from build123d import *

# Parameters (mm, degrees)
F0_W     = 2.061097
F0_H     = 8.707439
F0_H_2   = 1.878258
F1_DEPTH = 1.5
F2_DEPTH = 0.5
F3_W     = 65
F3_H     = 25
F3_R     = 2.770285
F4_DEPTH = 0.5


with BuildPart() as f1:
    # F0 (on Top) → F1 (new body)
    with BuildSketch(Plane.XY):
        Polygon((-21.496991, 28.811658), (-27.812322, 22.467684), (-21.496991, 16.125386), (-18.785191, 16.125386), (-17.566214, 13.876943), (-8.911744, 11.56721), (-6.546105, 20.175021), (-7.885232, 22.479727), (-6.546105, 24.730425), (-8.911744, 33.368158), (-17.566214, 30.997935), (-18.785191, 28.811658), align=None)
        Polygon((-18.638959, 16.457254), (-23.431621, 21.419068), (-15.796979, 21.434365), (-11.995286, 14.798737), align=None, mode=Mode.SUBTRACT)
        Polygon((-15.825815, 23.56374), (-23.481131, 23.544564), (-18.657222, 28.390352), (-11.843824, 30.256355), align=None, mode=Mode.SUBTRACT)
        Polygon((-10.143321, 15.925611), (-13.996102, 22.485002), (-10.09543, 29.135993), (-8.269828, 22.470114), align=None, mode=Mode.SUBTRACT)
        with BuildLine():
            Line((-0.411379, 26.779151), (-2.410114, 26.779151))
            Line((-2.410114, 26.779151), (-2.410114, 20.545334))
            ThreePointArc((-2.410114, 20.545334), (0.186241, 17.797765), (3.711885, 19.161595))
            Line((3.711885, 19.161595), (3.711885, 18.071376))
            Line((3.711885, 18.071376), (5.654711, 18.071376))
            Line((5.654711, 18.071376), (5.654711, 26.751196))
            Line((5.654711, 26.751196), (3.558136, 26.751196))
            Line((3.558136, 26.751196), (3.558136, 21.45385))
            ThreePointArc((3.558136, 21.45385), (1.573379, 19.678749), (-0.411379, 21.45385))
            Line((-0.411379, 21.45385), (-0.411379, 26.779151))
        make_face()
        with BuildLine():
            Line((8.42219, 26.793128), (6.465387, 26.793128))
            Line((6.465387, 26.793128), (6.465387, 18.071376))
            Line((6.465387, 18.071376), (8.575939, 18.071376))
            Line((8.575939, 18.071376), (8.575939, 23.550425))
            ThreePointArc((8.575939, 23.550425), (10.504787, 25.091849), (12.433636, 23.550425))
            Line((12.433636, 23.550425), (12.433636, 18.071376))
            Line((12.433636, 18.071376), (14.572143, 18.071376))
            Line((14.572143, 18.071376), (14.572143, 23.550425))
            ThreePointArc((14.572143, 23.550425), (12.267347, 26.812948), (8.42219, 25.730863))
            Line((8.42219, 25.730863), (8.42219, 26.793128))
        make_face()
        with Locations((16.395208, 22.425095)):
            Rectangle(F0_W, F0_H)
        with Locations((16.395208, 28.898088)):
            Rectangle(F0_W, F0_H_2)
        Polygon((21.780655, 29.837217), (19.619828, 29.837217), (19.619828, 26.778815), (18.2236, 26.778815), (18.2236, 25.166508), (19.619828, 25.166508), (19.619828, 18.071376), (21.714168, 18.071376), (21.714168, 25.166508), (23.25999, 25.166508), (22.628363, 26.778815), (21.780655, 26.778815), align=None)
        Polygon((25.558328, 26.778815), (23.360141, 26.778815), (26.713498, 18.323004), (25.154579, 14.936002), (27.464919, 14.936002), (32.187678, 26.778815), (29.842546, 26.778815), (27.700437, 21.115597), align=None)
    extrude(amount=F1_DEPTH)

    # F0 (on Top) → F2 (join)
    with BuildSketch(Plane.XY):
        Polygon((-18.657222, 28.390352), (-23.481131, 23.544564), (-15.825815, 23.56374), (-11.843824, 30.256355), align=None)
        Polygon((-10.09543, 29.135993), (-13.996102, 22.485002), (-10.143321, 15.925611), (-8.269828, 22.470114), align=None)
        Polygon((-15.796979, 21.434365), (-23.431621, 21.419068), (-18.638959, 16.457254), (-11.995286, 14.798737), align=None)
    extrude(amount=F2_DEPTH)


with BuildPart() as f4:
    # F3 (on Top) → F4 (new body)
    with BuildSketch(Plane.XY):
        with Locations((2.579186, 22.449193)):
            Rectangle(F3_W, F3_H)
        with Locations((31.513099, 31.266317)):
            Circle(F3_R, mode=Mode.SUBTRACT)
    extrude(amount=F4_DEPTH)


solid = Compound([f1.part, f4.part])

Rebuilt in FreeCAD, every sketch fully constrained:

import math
import FreeCAD as App
import Part
import Sketcher
from FreeCAD import Vector


def add_polygon(sketch, points):
    """Adds a closed chain of lines whose ends are joined by coincident constraints."""
    first, n = sketch.GeometryCount, len(points)
    for a, b in zip(points, points[1:] + points[:1]):
        sketch.addGeometry(Part.LineSegment(App.Vector(*a, 0), App.Vector(*b, 0)), False)
    for i in range(n):
        sketch.addConstraint(Sketcher.Constraint("Coincident", first + i, 2, first + (i + 1) % n, 1))

doc = App.newDocument("Part")
params = doc.addObject("Spreadsheet::Sheet", "Params")
for row, (alias, value) in enumerate([
    ("pad1_length", "1.5 mm"),
    ("pad2_length", "0.5 mm"),
    ("sketch3_width", "65 mm"),
    ("sketch3_height", "25 mm"),
    ("pad3_length", "0.5 mm"),
], start=1):
    params.set(f"A{row}", alias)
    params.set(f"B{row}", "=" + value)
    params.setAlias(f"B{row}", alias)

body = doc.addObject("PartDesign::Body", "Body")
body.AllowCompound = True

# Sketch on XY plane
sketch1 = body.newObject("Sketcher::SketchObject", "Sketch")
sketch1.AttachmentSupport = (doc.getObject("XY_Plane"), [""])
sketch1.MapMode = "FlatFace"
add_polygon(sketch1, [(-21.496991, 28.811658), (-27.812322, 22.467684), (-21.496991, 16.125386), (-18.785191, 16.125386), (-17.566214, 13.876943), (-8.911744, 11.56721), (-6.546105, 20.175021), (-7.885232, 22.479727), (-6.546105, 24.730425), (-8.911744, 33.368158), (-17.566214, 30.997935), (-18.785191, 28.811658)])  # lines 0-11
add_polygon(sketch1, [(-11.995286, 14.798737), (-18.638959, 16.457254), (-23.431621, 21.419068), (-15.796979, 21.434365)])  # lines 12-15
add_polygon(sketch1, [(-11.843824, 30.256355), (-15.825815, 23.56374), (-23.481131, 23.544564), (-18.657222, 28.390352)])  # lines 16-19
add_polygon(sketch1, [(-8.269828, 22.470114), (-10.143321, 15.925611), (-13.996102, 22.485002), (-10.09543, 29.135993)])  # lines 20-23
sketch1.addGeometry(Part.LineSegment(Vector(-0.411379, 26.779151, 0), Vector(-2.410114, 26.779151, 0)), False)  # 24
sketch1.addGeometry(Part.LineSegment(Vector(-2.410114, 26.779151, 0), Vector(-2.410114, 20.545334, 0)), False)  # 25
sketch1.addGeometry(Part.ArcOfCircle(Part.Circle(Vector(0.933671, 21.104576, 0), Vector(0, 0, 1), 3.390228), math.radians(-170.505268), math.radians(-34.967524)), False)  # 26
sketch1.addGeometry(Part.LineSegment(Vector(3.711885, 19.161595, 0), Vector(3.711885, 18.071376, 0)), False)  # 27
sketch1.addGeometry(Part.LineSegment(Vector(3.711885, 18.071376, 0), Vector(5.654711, 18.071376, 0)), False)  # 28
sketch1.addGeometry(Part.LineSegment(Vector(5.654711, 18.071376, 0), Vector(5.654711, 26.751196, 0)), False)  # 29
sketch1.addGeometry(Part.LineSegment(Vector(5.654711, 26.751196, 0), Vector(3.558136, 26.751196, 0)), False)  # 30
sketch1.addGeometry(Part.LineSegment(Vector(3.558136, 26.751196, 0), Vector(3.558136, 21.45385, 0)), False)  # 31
sketch1.addGeometry(Part.ArcOfCircle(Part.Circle(Vector(1.573379, 21.675888, 0), Vector(0, 0, 1), 1.997139), math.radians(-173.616778), math.radians(-6.383222)), False)  # 32
sketch1.addGeometry(Part.LineSegment(Vector(-0.411379, 21.45385, 0), Vector(-0.411379, 26.779151, 0)), False)  # 33
sketch1.addGeometry(Part.LineSegment(Vector(8.42219, 26.793128, 0), Vector(6.465387, 26.793128, 0)), False)  # 34
sketch1.addGeometry(Part.LineSegment(Vector(6.465387, 26.793128, 0), Vector(6.465387, 18.071376, 0)), False)  # 35
sketch1.addGeometry(Part.LineSegment(Vector(6.465387, 18.071376, 0), Vector(8.575939, 18.071376, 0)), False)  # 36
sketch1.addGeometry(Part.LineSegment(Vector(8.575939, 18.071376, 0), Vector(8.575939, 23.550425, 0)), False)  # 37
sketch1.addGeometry(Part.ArcOfCircle(Part.Circle(Vector(10.504788, 23.114312, 0), Vector(0, 0, 1), 1.977537), math.radians(12.740354), math.radians(167.259646)), False)  # 38
sketch1.addGeometry(Part.LineSegment(Vector(12.433636, 23.550425, 0), Vector(12.433636, 18.071376, 0)), False)  # 39
sketch1.addGeometry(Part.LineSegment(Vector(12.433636, 18.071376, 0), Vector(14.572143, 18.071376, 0)), False)  # 40
sketch1.addGeometry(Part.LineSegment(Vector(14.572143, 18.071376, 0), Vector(14.572143, 23.550425, 0)), False)  # 41
sketch1.addGeometry(Part.ArcOfCircle(Part.Circle(Vector(11.110634, 23.550425, 0), Vector(0, 0, 1), 3.461509), math.radians(0.000007), math.radians(140.956531)), False)  # 42
sketch1.addGeometry(Part.LineSegment(Vector(8.42219, 25.730863, 0), Vector(8.42219, 26.793128, 0)), False)  # 43
add_polygon(sketch1, [(15.36466, 26.778814), (15.36466, 18.071375), (17.425756, 18.071375), (17.425756, 26.778814)])  # lines 44-47
add_polygon(sketch1, [(15.36466, 29.837217), (15.36466, 27.958959), (17.425756, 27.958959), (17.425756, 29.837217)])  # lines 48-51
add_polygon(sketch1, [(21.780655, 29.837217), (19.619828, 29.837217), (19.619828, 26.778815), (18.2236, 26.778815), (18.2236, 25.166508), (19.619828, 25.166508), (19.619828, 18.071376), (21.714168, 18.071376), (21.714168, 25.166508), (23.25999, 25.166508), (22.628363, 26.778815), (21.780655, 26.778815)])  # lines 52-63
add_polygon(sketch1, [(25.558328, 26.778815), (23.360141, 26.778815), (26.713498, 18.323004), (25.154579, 14.936002), (27.464919, 14.936002), (32.187678, 26.778815), (29.842546, 26.778815), (27.700437, 21.115597)])  # lines 64-71
sketch1.addConstraint([
    Sketcher.Constraint("Coincident", 24, 2, 25, 1),
    Sketcher.Constraint("Coincident", 25, 2, 26, 1),
    Sketcher.Constraint("Coincident", 26, 2, 27, 1),
    Sketcher.Constraint("Coincident", 27, 2, 28, 1),
    Sketcher.Constraint("Coincident", 28, 2, 29, 1),
    Sketcher.Constraint("Coincident", 29, 2, 30, 1),
    Sketcher.Constraint("Coincident", 30, 2, 31, 1),
    Sketcher.Constraint("Coincident", 31, 2, 32, 2),
    Sketcher.Constraint("Coincident", 32, 1, 33, 1),
    Sketcher.Constraint("Coincident", 33, 2, 24, 1),
    Sketcher.Constraint("Coincident", 34, 2, 35, 1),
    Sketcher.Constraint("Coincident", 35, 2, 36, 1),
    Sketcher.Constraint("Coincident", 36, 2, 37, 1),
    Sketcher.Constraint("Coincident", 37, 2, 38, 2),
    Sketcher.Constraint("Coincident", 38, 1, 39, 1),
    Sketcher.Constraint("Coincident", 39, 2, 40, 1),
    Sketcher.Constraint("Coincident", 40, 2, 41, 1),
    Sketcher.Constraint("Tangent", 41, 2, 42, 1),
    Sketcher.Constraint("Coincident", 42, 2, 43, 1),
    Sketcher.Constraint("Coincident", 43, 2, 34, 1),
    Sketcher.Constraint("Horizontal", 2),
    Sketcher.Constraint("Horizontal", 11),
    Sketcher.Constraint("Horizontal", 24),
    Sketcher.Constraint("Vertical", 25),
    Sketcher.Constraint("Vertical", 27),
    Sketcher.Constraint("Horizontal", 28),
    Sketcher.Constraint("Vertical", 29),
    Sketcher.Constraint("Horizontal", 30),
    Sketcher.Constraint("Vertical", 31),
    Sketcher.Constraint("Vertical", 33),
    Sketcher.Constraint("Horizontal", 34),
    Sketcher.Constraint("Vertical", 35),
    Sketcher.Constraint("Horizontal", 36),
    Sketcher.Constraint("Vertical", 37),
    Sketcher.Constraint("Vertical", 39),
    Sketcher.Constraint("Horizontal", 40),
    Sketcher.Constraint("Vertical", 41),
    Sketcher.Constraint("Vertical", 43),
    Sketcher.Constraint("Vertical", 44),
    Sketcher.Constraint("Horizontal", 45),
    Sketcher.Constraint("Vertical", 46),
    Sketcher.Constraint("Horizontal", 47),
    Sketcher.Constraint("Vertical", 48),
    Sketcher.Constraint("Horizontal", 49),
    Sketcher.Constraint("Vertical", 50),
    Sketcher.Constraint("Horizontal", 51),
    Sketcher.Constraint("Horizontal", 52),
    Sketcher.Constraint("Vertical", 53),
    Sketcher.Constraint("Horizontal", 54),
    Sketcher.Constraint("Vertical", 55),
    Sketcher.Constraint("Horizontal", 56),
    Sketcher.Constraint("Vertical", 57),
    Sketcher.Constraint("Horizontal", 58),
    Sketcher.Constraint("Vertical", 59),
    Sketcher.Constraint("Horizontal", 60),
    Sketcher.Constraint("Horizontal", 62),
    Sketcher.Constraint("Vertical", 63),
    Sketcher.Constraint("Horizontal", 64),
    Sketcher.Constraint("Horizontal", 67),
    Sketcher.Constraint("Horizontal", 69),
    Sketcher.Constraint("Perpendicular", 8, 9),
    Sketcher.Constraint("Parallel", 7, 16),
    Sketcher.Constraint("Parallel", 0, 18),
    Sketcher.Constraint("Parallel", 9, 19),
    Sketcher.Constraint("Perpendicular", 19, 23),
    Sketcher.Constraint("Horizontal", 31, 2, 32, 1),
    Sketcher.Constraint("Horizontal", 28, 2, 35, 2),
    Sketcher.Constraint("Horizontal", 42, 3, 37, 2),
    Sketcher.Constraint("Horizontal", 37, 2, 38, 1),
    Sketcher.Constraint("Horizontal", 36, 2, 39, 2),
    Sketcher.Constraint("Horizontal", 40, 2, 44, 2),
    Sketcher.Constraint("Horizontal", 51, 2, 52, 2),
    Sketcher.Constraint("Horizontal", 47, 2, 53, 2),
    Sketcher.Constraint("Horizontal", 45, 2, 57, 2),
    Sketcher.Constraint("Horizontal", 56, 2, 59, 2),
    Sketcher.Constraint("Horizontal", 54, 2, 61, 2),
    Sketcher.Constraint("Horizontal", 62, 2, 64, 2),
    Sketcher.Constraint("Horizontal", 64, 2, 68, 2),
    Sketcher.Constraint("Vertical", 5, 2, 7, 2),
    Sketcher.Constraint("Vertical", 4, 2, 8, 2),
    Sketcher.Constraint("Vertical", 3, 2, 9, 2),
    Sketcher.Constraint("Vertical", 2, 2, 10, 2),
    Sketcher.Constraint("Vertical", 1, 2, 11, 2),
    Sketcher.Constraint("Vertical", 47, 2, 48, 2),
    Sketcher.Constraint("Vertical", 46, 2, 49, 2),
    Sketcher.Constraint("Vertical", 53, 2, 56, 2),
    Sketcher.Constraint("Equal", 70, 71),
    Sketcher.Constraint("Radius", 26, 3.390228),
    Sketcher.Constraint("Radius", 32, 1.997139),
    Sketcher.Constraint("Radius", 42, 3.461509),
    Sketcher.Constraint("DistanceX", 2, 1, 2, 2, 2.7118),
    Sketcher.Constraint("DistanceY", 33, 1, 33, 2, 5.325301),
    Sketcher.Constraint("DistanceY", 53, 2, 53, 1, 3.058402),
    Sketcher.Constraint("Radius", 38, 1.977537),
    Sketcher.Constraint("Distance", 19, 7.064302),
    Sketcher.Constraint("DistanceX", 58, 1, 58, 2, 2.09434),
    Sketcher.Constraint("DistanceX", 60, 1, 60, 2, 1.545822),
    Sketcher.Constraint("DistanceX", 62, 2, 62, 1, 0.847708),
    Sketcher.Constraint("DistanceX", 67, 1, 67, 2, 2.31034),
    Sketcher.Constraint("DistanceX", 69, 2, 69, 1, 2.345132),
    Sketcher.Constraint("DistanceY", 27, 2, 27, 1, 1.090219),
    Sketcher.Constraint("DistanceY", 29, 1, 29, 2, 8.67982),
    Sketcher.Constraint("DistanceY", 35, 2, 35, 1, 8.721752),
    Sketcher.Constraint("DistanceY", 37, 1, 37, 2, 5.479049),
    Sketcher.Constraint("DistanceY", 44, 2, 44, 1, 8.707439),
    Sketcher.Constraint("DistanceY", 57, 2, 57, 1, 7.095132),
    Sketcher.Constraint("DistanceX", -1, 1, 54, 2, 18.2236),
    Sketcher.Constraint("DistanceX", -1, 1, 65, 2, 26.713498),
    Sketcher.Constraint("Distance", 7, 2.618951),
    Sketcher.Constraint("Distance", 8, 8.955818),
    Sketcher.Constraint("Distance", 9, 8.973172),
    Sketcher.Constraint("Distance", 10, 2.50314),
    Sketcher.Constraint("Distance", 12, 6.847559),
    Sketcher.Constraint("Distance", 15, 7.647511),
    Sketcher.Constraint("Distance", 16, 7.787641),
    Sketcher.Constraint("Distance", 17, 7.65534),
    Sketcher.Constraint("Distance", 23, 6.91135),
    Sketcher.Constraint("Distance", 65, 9.096469),
    Sketcher.Constraint("Distance", 66, 3.72854),
    Sketcher.Constraint("Distance", 68, 12.749771),
    Sketcher.Constraint("DistanceX", 24, 2, 24, 1, 1.998735),
    Sketcher.Constraint("DistanceX", 28, 1, 28, 2, 1.942826),
    Sketcher.Constraint("DistanceX", 30, 2, 30, 1, 2.096575),
    Sketcher.Constraint("DistanceX", 34, 2, 34, 1, 1.956803),
    Sketcher.Constraint("DistanceX", 36, 1, 36, 2, 2.110552),
    Sketcher.Constraint("DistanceX", 40, 1, 40, 2, 2.138507),
    Sketcher.Constraint("DistanceX", 45, 1, 45, 2, 2.061097),
    Sketcher.Constraint("DistanceX", 52, 2, 52, 1, 2.160827),
    Sketcher.Constraint("DistanceX", 54, 2, 54, 1, 1.396228),
    Sketcher.Constraint("DistanceX", 64, 2, 64, 1, 2.198187),
    Sketcher.Constraint("DistanceY", 25, 2, 25, 1, 6.233817),
    Sketcher.Constraint("DistanceY", 31, 2, 31, 1, 5.297346),
    Sketcher.Constraint("DistanceY", 43, 1, 43, 2, 1.062265),
    Sketcher.Constraint("DistanceY", 48, 2, 48, 1, 1.878258),
    Sketcher.Constraint("DistanceX", -1, 1, 26, 3, 0.933671),
    Sketcher.Constraint("DistanceX", -1, 1, 32, 3, 1.573379),
    Sketcher.Constraint("DistanceX", 1, 2, -1, 1, 21.496991),
    Sketcher.Constraint("DistanceY", -1, 1, 4, 2, 11.56721),
    Sketcher.Constraint("DistanceY", -1, 1, 5, 2, 20.175021),
    Sketcher.Constraint("DistanceY", -1, 1, 10, 2, 28.811658),
    Sketcher.Constraint("DistanceX", 12, 2, -1, 1, 18.638959),
    Sketcher.Constraint("DistanceX", 13, 2, -1, 1, 23.431621),
    Sketcher.Constraint("DistanceX", 14, 2, -1, 1, 15.796979),
    Sketcher.Constraint("DistanceY", -1, 1, 16, 2, 23.56374),
    Sketcher.Constraint("DistanceX", 17, 2, -1, 1, 23.481131),
    Sketcher.Constraint("DistanceY", -1, 1, 18, 2, 28.390352),
    Sketcher.Constraint("DistanceX", 20, 2, -1, 1, 10.143321),
    Sketcher.Constraint("DistanceY", -1, 1, 20, 2, 15.925611),
    Sketcher.Constraint("DistanceX", 22, 2, -1, 1, 10.09543),
    Sketcher.Constraint("DistanceY", -1, 1, 24, 2, 26.779151),
    Sketcher.Constraint("DistanceX", -1, 1, 36, 2, 8.575939),
    Sketcher.Constraint("DistanceX", -1, 1, 44, 2, 15.36466),
    Sketcher.Constraint("DistanceX", -1, 1, 64, 2, 23.360141),
    Sketcher.Constraint("DistanceX", -1, 1, 66, 2, 25.154579),
    Sketcher.Constraint("Distance", 0, 8.951503),
    Sketcher.Constraint("Distance", 1, 8.950316),
    Sketcher.Constraint("Distance", 3, 2.557616),
    Sketcher.Constraint("Distance", 4, 8.957383),
    Sketcher.Constraint("Distance", 5, 8.926962),
    Sketcher.Constraint("Distance", 6, 2.665508),
    Sketcher.Constraint("Distance", 13, 6.898493),
    Sketcher.Constraint("Distance", 20, 6.807385),
    Sketcher.Constraint("Distance", 21, 7.607203),
    Sketcher.Constraint("Distance", 22, 7.710442),
    Sketcher.Constraint("Distance", 70, 6.054805),
    Sketcher.Constraint("DistanceY", -1, 1, 12, 2, 16.457254),
    Sketcher.Constraint("DistanceY", -1, 1, 14, 2, 21.434365),
])
pad1 = body.newObject("PartDesign::Pad", "Pad")
pad1.Profile = sketch1
pad1.setExpression("Length", "Params.pad1_length")

# Sketch on XY plane
sketch2 = body.newObject("Sketcher::SketchObject", "Sketch001")
sketch2.AttachmentSupport = (doc.getObject("XY_Plane"), [""])
sketch2.MapMode = "FlatFace"
add_polygon(sketch2, [(-18.657222, 28.390352), (-23.481131, 23.544564), (-15.825815, 23.56374), (-11.843824, 30.256355)])  # lines 0-3
add_polygon(sketch2, [(-10.09543, 29.135993), (-13.996102, 22.485002), (-10.143321, 15.925611), (-8.269828, 22.470114)])  # lines 4-7
add_polygon(sketch2, [(-15.796979, 21.434365), (-23.431621, 21.419068), (-18.638959, 16.457254), (-11.995286, 14.798737)])  # lines 8-11
sketch2.addConstraint([
    Sketcher.Constraint("Perpendicular", 3, 7),
    Sketcher.Constraint("Distance", 3, 7.064302),
    Sketcher.Constraint("DistanceX", 3, 2, 2, 2, 6.813398),
    Sketcher.Constraint("DistanceX", 3, 2, 5, 2, 8.513901),
    Sketcher.Constraint("DistanceX", 8, 2, 3, 2, 4.774399),
    Sketcher.Constraint("Distance", 1, 7.65534),
    Sketcher.Constraint("Distance", 2, 7.787641),
    Sketcher.Constraint("Distance", 7, 6.91135),
    Sketcher.Constraint("Distance", 10, 6.847559),
    Sketcher.Constraint("Distance", 11, 7.647511),
    Sketcher.Constraint("DistanceX", 0, 2, -1, 1, 23.481131),
    Sketcher.Constraint("DistanceY", -1, 1, 1, 2, 23.56374),
    Sketcher.Constraint("DistanceY", -1, 1, 3, 2, 28.390352),
    Sketcher.Constraint("DistanceY", -1, 1, 5, 2, 15.925611),
    Sketcher.Constraint("DistanceX", 7, 2, -1, 1, 10.09543),
    Sketcher.Constraint("DistanceX", 9, 2, -1, 1, 18.638959),
    Sketcher.Constraint("DistanceX", 11, 2, -1, 1, 15.796979),
    Sketcher.Constraint("DistanceY", 0, 2, 2, 2, 6.711791),
    Sketcher.Constraint("DistanceX", 3, 2, 4, 2, 4.66112),
    Sketcher.Constraint("DistanceY", 4, 2, 3, 2, 5.90535),
    Sketcher.Constraint("DistanceY", 6, 2, 4, 2, 0.014888),
    Sketcher.Constraint("DistanceY", 8, 2, 1, 2, 2.144672),
    Sketcher.Constraint("DistanceY", 9, 2, 4, 2, 6.027748),
    Sketcher.Constraint("DistanceX", 1, 2, 10, 2, 3.830529),
])
pad2 = body.newObject("PartDesign::Pad", "Pad001")
pad2.Profile = sketch2
pad2.setExpression("Length", "Params.pad2_length")
body2 = doc.addObject("PartDesign::Body", "Body001")

# Sketch on XY plane
sketch3 = body2.newObject("Sketcher::SketchObject", "Sketch002")
sketch3.AttachmentSupport = (doc.getObject("XY_Plane001"), [""])
sketch3.MapMode = "FlatFace"
add_polygon(sketch3, [(-29.920814, 34.949193), (-29.920814, 9.949193), (35.079186, 9.949193), (35.079186, 34.949193)])  # lines 0-3
sketch3.addGeometry(Part.Circle(Vector(31.513099, 31.266317, 0), Vector(0, 0, 1), 2.770285), False)  # 4
sketch3.addConstraint([
    Sketcher.Constraint("Vertical", 0),
    Sketcher.Constraint("Horizontal", 1),
    Sketcher.Constraint("Vertical", 2),
    Sketcher.Constraint("Horizontal", 3),
    Sketcher.Constraint("DistanceX", 1, 1, 1, 2, 65.0),
    Sketcher.Constraint("DistanceY", 0, 2, 0, 1, 25.0),
    Sketcher.Constraint("Diameter", 4, 5.54057),
    Sketcher.Constraint("DistanceX", -1, 1, 4, 3, 31.513099),
    Sketcher.Constraint("DistanceY", -1, 1, 4, 3, 31.266317),
    Sketcher.Constraint("DistanceX", 0, 2, -1, 1, 29.920814),
    Sketcher.Constraint("DistanceY", -1, 1, 0, 2, 9.949193),
])
sketch3.setExpression("Constraints[8]", "Params.sketch3_width")
sketch3.setExpression("Constraints[9]", "Params.sketch3_height")
pad3 = body2.newObject("PartDesign::Pad", "Pad002")
pad3.Profile = sketch3
pad3.setExpression("Length", "Params.pad3_length")

doc.recompute()
